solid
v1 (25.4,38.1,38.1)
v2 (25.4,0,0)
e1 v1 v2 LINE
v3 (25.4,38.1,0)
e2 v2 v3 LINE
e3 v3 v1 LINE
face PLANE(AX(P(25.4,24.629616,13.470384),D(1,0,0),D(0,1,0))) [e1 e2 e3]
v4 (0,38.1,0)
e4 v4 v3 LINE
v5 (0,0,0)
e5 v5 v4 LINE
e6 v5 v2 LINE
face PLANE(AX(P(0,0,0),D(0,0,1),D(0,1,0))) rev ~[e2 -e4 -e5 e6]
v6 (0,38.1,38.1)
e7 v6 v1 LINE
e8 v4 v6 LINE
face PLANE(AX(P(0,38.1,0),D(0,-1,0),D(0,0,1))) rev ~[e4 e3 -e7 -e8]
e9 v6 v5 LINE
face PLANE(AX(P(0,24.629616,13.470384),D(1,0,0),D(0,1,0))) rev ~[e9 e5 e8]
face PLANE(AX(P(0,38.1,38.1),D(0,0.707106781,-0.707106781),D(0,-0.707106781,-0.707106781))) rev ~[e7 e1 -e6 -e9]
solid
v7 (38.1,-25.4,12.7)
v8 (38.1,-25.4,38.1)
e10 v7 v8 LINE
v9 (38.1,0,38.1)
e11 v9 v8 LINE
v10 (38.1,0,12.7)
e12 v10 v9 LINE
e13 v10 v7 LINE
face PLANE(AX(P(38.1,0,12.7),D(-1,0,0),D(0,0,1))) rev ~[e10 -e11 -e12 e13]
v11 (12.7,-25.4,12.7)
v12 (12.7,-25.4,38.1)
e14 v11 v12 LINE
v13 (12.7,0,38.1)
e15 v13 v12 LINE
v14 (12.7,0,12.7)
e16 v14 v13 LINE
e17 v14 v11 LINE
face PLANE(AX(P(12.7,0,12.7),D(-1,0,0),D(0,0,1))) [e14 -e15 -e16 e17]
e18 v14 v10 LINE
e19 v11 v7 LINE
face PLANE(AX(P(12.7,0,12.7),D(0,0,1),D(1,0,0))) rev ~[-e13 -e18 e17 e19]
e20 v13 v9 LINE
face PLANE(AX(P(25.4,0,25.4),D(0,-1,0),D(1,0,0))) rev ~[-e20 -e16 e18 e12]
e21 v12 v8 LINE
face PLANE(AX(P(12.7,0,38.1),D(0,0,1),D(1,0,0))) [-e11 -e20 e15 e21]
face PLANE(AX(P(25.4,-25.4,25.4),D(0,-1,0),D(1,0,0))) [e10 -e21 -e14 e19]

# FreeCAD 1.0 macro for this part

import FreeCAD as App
import Part
import Sketcher

V = App.Vector
Q = App.Units.Quantity

doc = App.newDocument("Part")
body = doc.addObject("PartDesign::Body", "Body")

sketch1 = body.newObject("Sketcher::SketchObject", "Sketch")
sketch1.AttachmentSupport = (doc.getObject("YZ_Plane"), [""])
sketch1.MapMode = "FlatFace"
sketch1.addGeometry([
    Part.LineSegment(V(38, 38, 0), V(0, 0, 0)),
    Part.LineSegment(V(0, 0, 0), V(38, 0, 0)),
    Part.LineSegment(V(38, 0, 0), V(38, 38, 0)),
], False)
sketch1.addConstraint([
    Sketcher.Constraint("Coincident", 0, 2, 1, 1),
    Sketcher.Constraint("Coincident", 1, 2, 2, 1),
    Sketcher.Constraint("Coincident", 2, 2, 0, 1),
    Sketcher.Constraint("Horizontal", 1),
    Sketcher.Constraint("Vertical", 2),
    Sketcher.Constraint("Coincident", 0, 2, -1, 1),
    Sketcher.Constraint("Equal", 1, 2),
    Sketcher.Constraint("DistanceX", 1, 1, 1, 2, Q("1.5 in")),
])
pad1 = body.newObject("PartDesign::Pad", "Pad")
pad1.Profile = sketch1
pad1.Length = Q("1 in")
body2 = doc.addObject("PartDesign::Body", "Body001")

sketch2 = body2.newObject("Sketcher::SketchObject", "Sketch001")
sketch2.AttachmentSupport = (doc.getObject("XZ_Plane001"), [""])
sketch2.MapMode = "FlatFace"
sketch2.addGeometry([
    Part.LineSegment(V(13, 38, 0), V(13, 13, 0)),
    Part.LineSegment(V(13, 13, 0), V(38, 13, 0)),
    Part.LineSegment(V(38, 13, 0), V(38, 38, 0)),
    Part.LineSegment(V(38, 38, 0), V(13, 38, 0)),
], False)
sketch2.addConstraint([
    Sketcher.Constraint("Coincident", 0, 2, 1, 1),
    Sketcher.Constraint("Coincident", 1, 2, 2, 1),
    Sketcher.Constraint("Coincident", 2, 2, 3, 1),
    Sketcher.Constraint("Coincident", 3, 2, 0, 1),
    Sketcher.Constraint("Vertical", 0),
    Sketcher.Constraint("Horizontal", 1),
    Sketcher.Constraint("Vertical", 2),
    Sketcher.Constraint("Horizontal", 3),
    Sketcher.Constraint("Equal", 3, 0),
    Sketcher.Constraint("DistanceX", 1, 1, 1, 2, Q("1 in")),
    Sketcher.Constraint("DistanceX", -1, 1, 0, 2, Q("0.5 in")),
    Sketcher.Constraint("DistanceY", -1, 1, 0, 2, Q("0.5 in")),
])
pad2 = body2.newObject("PartDesign::Pad", "Pad001")
pad2.Profile = sketch2
pad2.Length = Q("1 in")

doc.recompute()
